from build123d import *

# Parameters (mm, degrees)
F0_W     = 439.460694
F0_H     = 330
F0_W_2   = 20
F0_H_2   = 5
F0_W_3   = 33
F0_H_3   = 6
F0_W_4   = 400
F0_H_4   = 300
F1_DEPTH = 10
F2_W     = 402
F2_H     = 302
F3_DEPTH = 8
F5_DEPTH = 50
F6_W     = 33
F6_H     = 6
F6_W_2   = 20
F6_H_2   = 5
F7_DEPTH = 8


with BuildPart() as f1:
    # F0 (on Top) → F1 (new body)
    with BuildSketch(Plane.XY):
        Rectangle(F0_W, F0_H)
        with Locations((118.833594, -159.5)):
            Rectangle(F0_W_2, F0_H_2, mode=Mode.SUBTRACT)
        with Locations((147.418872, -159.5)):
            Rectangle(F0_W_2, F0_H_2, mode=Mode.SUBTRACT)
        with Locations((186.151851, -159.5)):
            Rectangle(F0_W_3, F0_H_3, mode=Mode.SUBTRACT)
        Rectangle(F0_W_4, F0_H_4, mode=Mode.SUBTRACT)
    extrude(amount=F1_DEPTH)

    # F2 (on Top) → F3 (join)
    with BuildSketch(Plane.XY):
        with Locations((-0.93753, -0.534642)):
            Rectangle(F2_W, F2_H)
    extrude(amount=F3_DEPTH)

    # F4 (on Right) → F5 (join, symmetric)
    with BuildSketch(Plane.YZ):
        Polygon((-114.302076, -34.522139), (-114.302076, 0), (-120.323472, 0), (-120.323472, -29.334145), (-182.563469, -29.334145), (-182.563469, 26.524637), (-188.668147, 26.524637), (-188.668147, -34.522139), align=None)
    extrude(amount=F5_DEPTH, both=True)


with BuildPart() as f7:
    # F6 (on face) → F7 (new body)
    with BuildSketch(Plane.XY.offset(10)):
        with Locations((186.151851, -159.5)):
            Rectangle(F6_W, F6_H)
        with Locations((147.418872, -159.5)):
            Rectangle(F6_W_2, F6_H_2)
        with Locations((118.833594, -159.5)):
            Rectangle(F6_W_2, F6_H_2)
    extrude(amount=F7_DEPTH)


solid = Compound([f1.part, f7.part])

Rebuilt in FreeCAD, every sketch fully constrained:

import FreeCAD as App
import Part
import Sketcher

V = App.Vector
Q = App.Units.Quantity


def add_polygon(sketch, points):
    """Adds a closed chain of lines whose ends are joined by coincident constraints."""
    first, n = sketch.GeometryCount, len(points)
    for a, b in zip(points, points[1:] + points[:1]):
        sketch.addGeometry(Part.LineSegment(App.Vector(*a, 0), App.Vector(*b, 0)), False)
    for i in range(n):
        sketch.addConstraint(Sketcher.Constraint("Coincident", first + i, 2, first + (i + 1) % n, 1))

doc = App.newDocument("Part")
body = doc.addObject("PartDesign::Body", "Body")

# Sketch on XY plane
sketch1 = doc.addObject("Sketcher::SketchObject", "Sketch")
body.addObject(sketch1)
sketch1.AttachmentSupport = (doc.XY_Plane, [""])
sketch1.MapMode = "FlatFace"
add_polygon(sketch1, [(-220, 165), (-220, -165), (220, -165), (220, 165)])  # lines 0-3
add_polygon(sketch1, [(129, -162), (109, -162), (109, -157), (129, -157)])  # lines 4-7
add_polygon(sketch1, [(157, -162), (137, -162), (137, -157), (157, -157)])  # lines 8-11
add_polygon(sketch1, [(203, -162), (170, -162), (170, -156), (203, -156)])  # lines 12-15
add_polygon(sketch1, [(200, -150), (-200, -150), (-200, 150), (200, 150)])  # lines 16-19
sketch1.addConstraint(Sketcher.Constraint("Vertical", 0))
sketch1.addConstraint(Sketcher.Constraint("Horizontal", 1))
sketch1.addConstraint(Sketcher.Constraint("Vertical", 2))
sketch1.addConstraint(Sketcher.Constraint("Horizontal", 3))
sketch1.addConstraint(Sketcher.Constraint("Horizontal", 4))
sketch1.addConstraint(Sketcher.Constraint("Vertical", 5))
sketch1.addConstraint(Sketcher.Constraint("Horizontal", 6))
sketch1.addConstraint(Sketcher.Constraint("Vertical", 7))
sketch1.addConstraint(Sketcher.Constraint("Horizontal", 8))
sketch1.addConstraint(Sketcher.Constraint("Vertical", 9))
sketch1.addConstraint(Sketcher.Constraint("Horizontal", 10))
sketch1.addConstraint(Sketcher.Constraint("Vertical", 11))
sketch1.addConstraint(Sketcher.Constraint("Horizontal", 12))
sketch1.addConstraint(Sketcher.Constraint("Vertical", 13))
sketch1.addConstraint(Sketcher.Constraint("Horizontal", 14))
sketch1.addConstraint(Sketcher.Constraint("Vertical", 15))
sketch1.addConstraint(Sketcher.Constraint("Horizontal", 16))
sketch1.addConstraint(Sketcher.Constraint("Vertical", 17))
sketch1.addConstraint(Sketcher.Constraint("Horizontal", 18))
sketch1.addConstraint(Sketcher.Constraint("Vertical", 19))
sketch1.addConstraint(Sketcher.Constraint("Symmetric", 0, 2, 2, 2, -1, 1))
sketch1.addConstraint(Sketcher.Constraint("Symmetric", 16, 2, 18, 2, -1, 1))
sketch1.addConstraint(Sketcher.Constraint("Horizontal", 7, 2, 8, 2))
sketch1.addConstraint(Sketcher.Constraint("Horizontal", 6, 2, 9, 2))
sketch1.addConstraint(Sketcher.Constraint("Equal", 6, 8))
sketch1.addConstraint(Sketcher.Constraint("DistanceX", 4, 2, 4, 1, Q("20 mm")))
sketch1.addConstraint(Sketcher.Constraint("DistanceX", 12, 2, 12, 1, Q("33 mm")))
sketch1.addConstraint(Sketcher.Constraint("DistanceX", 16, 2, 16, 1, Q("400 mm")))
sketch1.addConstraint(Sketcher.Constraint("DistanceY", 0, 2, 0, 1, Q("330 mm")))
sketch1.addConstraint(Sketcher.Constraint("DistanceY", 5, 1, 5, 2, Q("5 mm")))
sketch1.addConstraint(Sketcher.Constraint("DistanceY", 13, 1, 13, 2, Q("6 mm")))
sketch1.addConstraint(Sketcher.Constraint("DistanceY", 17, 1, 17, 2, Q("300 mm")))
sketch1.addConstraint(Sketcher.Constraint("DistanceY", 4, 2, -1, 1, Q("162 mm")))
sketch1.addConstraint(Sketcher.Constraint("DistanceY", 12, 2, -1, 1, Q("162.5 mm")))
sketch1.addConstraint(Sketcher.Constraint("DistanceX", 1, 1, 1, 2, Q("439.460694 mm")))
sketch1.addConstraint(Sketcher.Constraint("DistanceX", -1, 1, 8, 2, Q("137.418872 mm")))
sketch1.addConstraint(Sketcher.Constraint("DistanceX", -1, 1, 12, 2, Q("169.651851 mm")))
sketch1.addConstraint(Sketcher.Constraint("DistanceX", 0, 2, 4, 2, Q("328.563941 mm")))
pad1 = doc.addObject("PartDesign::Pad", "Pad")
body.addObject(pad1)
pad1.Profile = sketch1
pad1.Length = 10

# Sketch on XY plane
sketch2 = doc.addObject("Sketcher::SketchObject", "Sketch001")
body.addObject(sketch2)
sketch2.AttachmentSupport = (doc.XY_Plane, [""])
sketch2.MapMode = "FlatFace"
add_polygon(sketch2, [(-202, 150), (-202, -152), (200, -152), (200, 150)])  # lines 0-3
sketch2.addConstraint(Sketcher.Constraint("Vertical", 0))
sketch2.addConstraint(Sketcher.Constraint("Horizontal", 1))
sketch2.addConstraint(Sketcher.Constraint("Vertical", 2))
sketch2.addConstraint(Sketcher.Constraint("Horizontal", 3))
sketch2.addConstraint(Sketcher.Constraint("DistanceX", 1, 1, 1, 2, Q("402 mm")))
sketch2.addConstraint(Sketcher.Constraint("DistanceY", 0, 2, 0, 1, Q("302 mm")))
sketch2.addConstraint(Sketcher.Constraint("DistanceX", 0, 2, -1, 1, Q("201.93753 mm")))
sketch2.addConstraint(Sketcher.Constraint("DistanceY", 0, 2, -1, 1, Q("151.534642 mm")))
pad2 = doc.addObject("PartDesign::Pad", "Pad001")
body.addObject(pad2)
pad2.Profile = sketch2
pad2.Length = 8

# Sketch on YZ plane
sketch3 = doc.addObject("Sketcher::SketchObject", "Sketch002")
body.addObject(sketch3)
sketch3.AttachmentSupport = (doc.YZ_Plane, [""])
sketch3.MapMode = "FlatFace"
add_polygon(sketch3, [(-114, -35), (-114, 0), (-120, 0), (-120, -29), (-183, -29), (-183, 27), (-189, 27), (-189, -35)])  # lines 0-7
sketch3.addConstraint(Sketcher.Constraint("Vertical", 0))
sketch3.addConstraint(Sketcher.Constraint("Horizontal", 1))
sketch3.addConstraint(Sketcher.Constraint("Vertical", 2))
sketch3.addConstraint(Sketcher.Constraint("Horizontal", 3))
sketch3.addConstraint(Sketcher.Constraint("Vertical", 4))
sketch3.addConstraint(Sketcher.Constraint("Horizontal", 5))
sketch3.addConstraint(Sketcher.Constraint("Vertical", 6))
sketch3.addConstraint(Sketcher.Constraint("Horizontal", 7))
sketch3.addConstraint(Sketcher.Constraint("PointOnObject", 0, 2, -1))
sketch3.addConstraint(Sketcher.Constraint("DistanceX", 5, 2, 5, 1, Q("6.104678 mm")))
sketch3.addConstraint(Sketcher.Constraint("DistanceX", 7, 1, 7, 2, Q("74.366071 mm")))
sketch3.addConstraint(Sketcher.Constraint("DistanceY", 0, 1, 0, 2, Q("34.522139 mm")))
sketch3.addConstraint(Sketcher.Constraint("DistanceY", 4, 1, 4, 2, Q("55.858782 mm")))
sketch3.addConstraint(Sketcher.Constraint("DistanceX", 1, 2, 1, 1, Q("6.021396 mm")))
sketch3.addConstraint(Sketcher.Constraint("DistanceY", 2, 2, 2, 1, Q("29.334145 mm")))
sketch3.addConstraint(Sketcher.Constraint("DistanceX", 1, 2, -1, 1, Q("120.323472 mm")))
pad3 = doc.addObject("PartDesign::Pad", "Pad002")
body.addObject(pad3)
pad3.Profile = sketch3
pad3.Length = 100
pad3.Midplane = True
body2 = doc.addObject("PartDesign::Body", "Body001")
body2.AllowCompound = True

# Sketch on XY plane
sketch4 = doc.addObject("Sketcher::SketchObject", "Sketch003")
body2.addObject(sketch4)
sketch4.AttachmentSupport = (doc.getObject("XY_Plane001"), [""])
sketch4.MapMode = "FlatFace"
sketch4.AttachmentOffset = App.Placement(V(0, 0, 10), App.Rotation())
add_polygon(sketch4, [(170, -156), (170, -162), (203, -162), (203, -156)])  # lines 0-3
add_polygon(sketch4, [(137, -157), (137, -162), (157, -162), (157, -157)])  # lines 4-7
add_polygon(sketch4, [(109, -157), (109, -162), (129, -162), (129, -157)])  # lines 8-11
sketch4.addConstraint(Sketcher.Constraint("Vertical", 0))
sketch4.addConstraint(Sketcher.Constraint("Horizontal", 1))
sketch4.addConstraint(Sketcher.Constraint("Vertical", 2))
sketch4.addConstraint(Sketcher.Constraint("Horizontal", 3))
sketch4.addConstraint(Sketcher.Constraint("Vertical", 4))
sketch4.addConstraint(Sketcher.Constraint("Horizontal", 5))
sketch4.addConstraint(Sketcher.Constraint("Vertical", 6))
sketch4.addConstraint(Sketcher.Constraint("Horizontal", 7))
sketch4.addConstraint(Sketcher.Constraint("Vertical", 8))
sketch4.addConstraint(Sketcher.Constraint("Horizontal", 9))
sketch4.addConstraint(Sketcher.Constraint("Vertical", 10))
sketch4.addConstraint(Sketcher.Constraint("Horizontal", 11))
sketch4.addConstraint(Sketcher.Constraint("Horizontal", 5, 2, 8, 2))
sketch4.addConstraint(Sketcher.Constraint("Horizontal", 7, 2, 10, 2))
sketch4.addConstraint(Sketcher.Constraint("Equal", 7, 9))
sketch4.addConstraint(Sketcher.Constraint("DistanceX", 1, 1, 1, 2, Q("33 mm")))
sketch4.addConstraint(Sketcher.Constraint("DistanceX", 5, 1, 5, 2, Q("20 mm")))
sketch4.addConstraint(Sketcher.Constraint("DistanceY", 0, 2, 0, 1, Q("6 mm")))
sketch4.addConstraint(Sketcher.Constraint("DistanceY", 4, 2, 4, 1, Q("5 mm")))
sketch4.addConstraint(Sketcher.Constraint("DistanceY", 4, 2, -1, 1, Q("162 mm")))
sketch4.addConstraint(Sketcher.Constraint("DistanceY", 0, 2, -1, 1, Q("162.5 mm")))
sketch4.addConstraint(Sketcher.Constraint("DistanceX", -1, 1, 0, 2, Q("169.651851 mm")))
sketch4.addConstraint(Sketcher.Constraint("DistanceX", -1, 1, 4, 2, Q("137.418872 mm")))
sketch4.addConstraint(Sketcher.Constraint("DistanceX", -1, 1, 8, 2, Q("108.833594 mm")))
pad4 = doc.addObject("PartDesign::Pad", "Pad003")
body2.addObject(pad4)
pad4.Profile = sketch4
pad4.Length = 8

doc.recompute()
